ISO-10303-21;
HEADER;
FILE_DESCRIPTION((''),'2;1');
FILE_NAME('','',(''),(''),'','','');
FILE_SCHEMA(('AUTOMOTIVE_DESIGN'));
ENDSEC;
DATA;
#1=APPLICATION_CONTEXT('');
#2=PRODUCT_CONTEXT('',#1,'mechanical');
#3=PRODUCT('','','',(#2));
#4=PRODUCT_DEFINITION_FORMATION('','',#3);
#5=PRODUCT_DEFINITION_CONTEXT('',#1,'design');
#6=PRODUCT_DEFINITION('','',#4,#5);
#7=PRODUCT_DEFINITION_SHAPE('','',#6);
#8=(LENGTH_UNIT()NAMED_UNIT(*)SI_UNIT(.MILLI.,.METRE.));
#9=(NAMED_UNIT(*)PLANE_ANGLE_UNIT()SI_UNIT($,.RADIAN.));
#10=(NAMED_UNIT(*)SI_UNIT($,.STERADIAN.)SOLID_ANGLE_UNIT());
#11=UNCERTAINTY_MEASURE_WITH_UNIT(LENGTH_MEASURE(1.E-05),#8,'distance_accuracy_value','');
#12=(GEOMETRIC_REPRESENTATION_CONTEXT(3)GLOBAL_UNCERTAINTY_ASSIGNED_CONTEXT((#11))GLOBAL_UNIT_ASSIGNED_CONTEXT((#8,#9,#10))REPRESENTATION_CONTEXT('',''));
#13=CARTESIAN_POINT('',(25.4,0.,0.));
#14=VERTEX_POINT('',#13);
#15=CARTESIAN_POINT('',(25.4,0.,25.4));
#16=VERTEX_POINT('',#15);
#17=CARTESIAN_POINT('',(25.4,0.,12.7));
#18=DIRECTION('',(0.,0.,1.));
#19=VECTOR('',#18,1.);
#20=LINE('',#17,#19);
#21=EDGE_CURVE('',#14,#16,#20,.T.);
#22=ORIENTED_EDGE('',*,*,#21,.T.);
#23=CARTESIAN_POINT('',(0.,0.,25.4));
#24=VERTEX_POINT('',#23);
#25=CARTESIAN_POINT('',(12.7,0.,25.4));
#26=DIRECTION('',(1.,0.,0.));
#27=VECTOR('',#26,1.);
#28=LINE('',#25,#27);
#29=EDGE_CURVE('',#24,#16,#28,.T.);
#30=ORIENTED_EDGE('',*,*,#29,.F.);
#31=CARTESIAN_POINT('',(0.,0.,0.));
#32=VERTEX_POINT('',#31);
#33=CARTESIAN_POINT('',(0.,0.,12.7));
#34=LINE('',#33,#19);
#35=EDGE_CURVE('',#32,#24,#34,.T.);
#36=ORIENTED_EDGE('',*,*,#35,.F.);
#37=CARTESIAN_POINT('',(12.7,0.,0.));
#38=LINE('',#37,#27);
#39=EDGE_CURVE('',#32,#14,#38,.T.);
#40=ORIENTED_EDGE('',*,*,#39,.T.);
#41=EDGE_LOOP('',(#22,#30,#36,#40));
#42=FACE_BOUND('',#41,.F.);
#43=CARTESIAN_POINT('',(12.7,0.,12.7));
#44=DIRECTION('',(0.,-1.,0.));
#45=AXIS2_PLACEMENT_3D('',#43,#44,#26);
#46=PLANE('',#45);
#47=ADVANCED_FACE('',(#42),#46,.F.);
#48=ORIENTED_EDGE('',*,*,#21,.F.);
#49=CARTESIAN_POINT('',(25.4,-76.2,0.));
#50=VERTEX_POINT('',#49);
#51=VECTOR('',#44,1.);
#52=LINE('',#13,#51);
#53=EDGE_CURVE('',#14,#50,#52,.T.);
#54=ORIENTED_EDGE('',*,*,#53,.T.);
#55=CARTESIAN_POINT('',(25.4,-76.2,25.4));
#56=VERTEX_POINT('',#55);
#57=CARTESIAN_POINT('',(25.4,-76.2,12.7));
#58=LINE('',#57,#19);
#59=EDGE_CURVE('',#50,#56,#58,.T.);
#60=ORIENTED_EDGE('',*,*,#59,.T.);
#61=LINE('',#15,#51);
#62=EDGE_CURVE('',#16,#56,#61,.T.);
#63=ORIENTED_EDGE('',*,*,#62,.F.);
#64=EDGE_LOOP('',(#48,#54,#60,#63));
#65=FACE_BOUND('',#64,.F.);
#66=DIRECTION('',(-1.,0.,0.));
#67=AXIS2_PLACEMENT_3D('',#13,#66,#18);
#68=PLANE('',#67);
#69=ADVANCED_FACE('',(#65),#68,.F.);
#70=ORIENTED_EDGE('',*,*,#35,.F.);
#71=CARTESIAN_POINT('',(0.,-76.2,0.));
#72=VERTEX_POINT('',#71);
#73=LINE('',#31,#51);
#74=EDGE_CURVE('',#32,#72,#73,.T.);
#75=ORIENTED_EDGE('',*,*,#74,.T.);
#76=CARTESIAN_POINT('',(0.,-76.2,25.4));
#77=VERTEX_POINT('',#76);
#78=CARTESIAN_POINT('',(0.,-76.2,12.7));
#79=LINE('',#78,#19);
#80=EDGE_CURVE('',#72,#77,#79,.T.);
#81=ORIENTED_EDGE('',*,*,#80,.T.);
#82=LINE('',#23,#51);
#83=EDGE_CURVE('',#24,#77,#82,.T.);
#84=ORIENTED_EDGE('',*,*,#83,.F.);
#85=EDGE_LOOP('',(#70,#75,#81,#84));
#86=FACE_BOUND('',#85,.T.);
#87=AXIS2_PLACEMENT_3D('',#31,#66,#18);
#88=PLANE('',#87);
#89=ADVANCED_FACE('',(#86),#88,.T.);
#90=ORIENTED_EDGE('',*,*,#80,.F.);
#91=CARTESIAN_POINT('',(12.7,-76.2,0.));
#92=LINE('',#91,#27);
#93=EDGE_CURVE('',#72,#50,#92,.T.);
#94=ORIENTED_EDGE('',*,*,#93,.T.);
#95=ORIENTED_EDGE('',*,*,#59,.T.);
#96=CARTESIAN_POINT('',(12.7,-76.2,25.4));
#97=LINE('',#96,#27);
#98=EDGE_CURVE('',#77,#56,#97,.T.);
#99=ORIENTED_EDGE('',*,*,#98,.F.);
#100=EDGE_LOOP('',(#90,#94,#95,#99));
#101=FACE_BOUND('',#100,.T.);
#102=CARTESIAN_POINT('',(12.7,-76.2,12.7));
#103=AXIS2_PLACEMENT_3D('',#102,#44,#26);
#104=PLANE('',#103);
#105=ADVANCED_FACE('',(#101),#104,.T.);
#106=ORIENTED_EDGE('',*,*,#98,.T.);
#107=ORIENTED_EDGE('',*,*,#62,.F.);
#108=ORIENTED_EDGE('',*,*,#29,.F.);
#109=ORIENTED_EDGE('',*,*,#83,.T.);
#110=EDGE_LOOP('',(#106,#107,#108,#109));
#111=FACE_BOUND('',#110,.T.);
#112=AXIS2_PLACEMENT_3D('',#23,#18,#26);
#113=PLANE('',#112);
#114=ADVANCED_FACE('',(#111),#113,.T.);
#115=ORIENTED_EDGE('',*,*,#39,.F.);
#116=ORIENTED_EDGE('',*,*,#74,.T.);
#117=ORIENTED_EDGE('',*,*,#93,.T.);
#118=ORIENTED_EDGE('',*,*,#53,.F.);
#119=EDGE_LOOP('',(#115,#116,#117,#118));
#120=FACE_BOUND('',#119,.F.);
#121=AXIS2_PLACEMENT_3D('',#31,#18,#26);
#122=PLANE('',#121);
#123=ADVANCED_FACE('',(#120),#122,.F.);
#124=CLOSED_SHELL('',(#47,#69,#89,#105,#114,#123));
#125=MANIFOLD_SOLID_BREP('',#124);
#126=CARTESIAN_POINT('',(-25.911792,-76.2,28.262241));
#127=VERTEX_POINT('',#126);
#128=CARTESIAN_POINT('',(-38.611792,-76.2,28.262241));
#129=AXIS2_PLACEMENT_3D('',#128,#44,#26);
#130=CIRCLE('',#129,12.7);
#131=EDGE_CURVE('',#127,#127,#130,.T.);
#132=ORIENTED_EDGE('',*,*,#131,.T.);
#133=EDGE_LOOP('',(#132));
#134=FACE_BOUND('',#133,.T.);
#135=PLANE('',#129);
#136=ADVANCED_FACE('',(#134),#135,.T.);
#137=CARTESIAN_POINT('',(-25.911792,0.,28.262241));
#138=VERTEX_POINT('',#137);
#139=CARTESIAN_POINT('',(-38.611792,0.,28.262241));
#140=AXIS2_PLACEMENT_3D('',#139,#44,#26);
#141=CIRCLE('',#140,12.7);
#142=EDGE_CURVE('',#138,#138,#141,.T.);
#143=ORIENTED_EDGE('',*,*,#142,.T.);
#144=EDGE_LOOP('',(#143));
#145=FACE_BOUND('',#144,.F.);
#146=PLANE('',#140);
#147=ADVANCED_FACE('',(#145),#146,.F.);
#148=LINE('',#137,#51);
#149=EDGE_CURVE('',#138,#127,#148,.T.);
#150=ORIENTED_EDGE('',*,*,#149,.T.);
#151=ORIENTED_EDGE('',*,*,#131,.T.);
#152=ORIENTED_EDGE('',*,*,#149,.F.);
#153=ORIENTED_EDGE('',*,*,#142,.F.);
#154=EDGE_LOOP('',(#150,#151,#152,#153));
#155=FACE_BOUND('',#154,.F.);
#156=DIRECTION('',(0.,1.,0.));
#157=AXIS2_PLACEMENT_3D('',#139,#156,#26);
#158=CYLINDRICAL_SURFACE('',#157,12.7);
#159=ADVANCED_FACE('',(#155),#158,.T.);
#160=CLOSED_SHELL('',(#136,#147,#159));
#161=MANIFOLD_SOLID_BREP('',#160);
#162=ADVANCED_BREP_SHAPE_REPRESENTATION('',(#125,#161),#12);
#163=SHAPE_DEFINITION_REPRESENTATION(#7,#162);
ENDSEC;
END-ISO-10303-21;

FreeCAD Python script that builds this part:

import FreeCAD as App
import Part
import Sketcher
from FreeCAD import Vector
Q = App.Units.Quantity

doc = App.newDocument("Part")
body = doc.addObject("PartDesign::Body", "Body")
body.AllowCompound = True

# Sketch on XZ plane
sketch1 = doc.addObject("Sketcher::SketchObject", "Sketch")
body.addObject(sketch1)
sketch1.AttachmentSupport = (doc.XZ_Plane, [""])
sketch1.MapMode = "FlatFace"
sketch1.addGeometry([
    Part.Circle(Vector(-39, 28, 0), Vector(0, 0, 1), 13),  # 0
    Part.LineSegment(Vector(0, 25, 0), Vector(0, 0, 0)),  # 1
    Part.LineSegment(Vector(0, 0, 0), Vector(25, 0, 0)),  # 2
    Part.LineSegment(Vector(25, 0, 0), Vector(25, 25, 0)),  # 3
    Part.LineSegment(Vector(25, 25, 0), Vector(0, 25, 0)),  # 4
], False)
sketch1.addConstraint([
    Sketcher.Constraint("Coincident", 1, 2, 2, 1),
    Sketcher.Constraint("Coincident", 2, 2, 3, 1),
    Sketcher.Constraint("Coincident", 3, 2, 4, 1),
    Sketcher.Constraint("Coincident", 4, 2, 1, 1),
    Sketcher.Constraint("Vertical", 1),
    Sketcher.Constraint("Horizontal", 2),
    Sketcher.Constraint("Vertical", 3),
    Sketcher.Constraint("Horizontal", 4),
    Sketcher.Constraint("Coincident", 1, 2, -1, 1),
    Sketcher.Constraint("Equal", 4, 1),
    Sketcher.Constraint("Diameter", 0, Q("1 in")),
    Sketcher.Constraint("DistanceX", 2, 1, 2, 2, Q("1 in")),
    Sketcher.Constraint("DistanceY", -1, 1, 0, 3, 28.262241),
    Sketcher.Constraint("DistanceX", 0, 3, 2, 2, 64.011792),
])
pad1 = doc.addObject("PartDesign::Pad", "Pad")
body.addObject(pad1)
pad1.Profile = sketch1
pad1.Length = Q("3 in")

doc.recompute()
